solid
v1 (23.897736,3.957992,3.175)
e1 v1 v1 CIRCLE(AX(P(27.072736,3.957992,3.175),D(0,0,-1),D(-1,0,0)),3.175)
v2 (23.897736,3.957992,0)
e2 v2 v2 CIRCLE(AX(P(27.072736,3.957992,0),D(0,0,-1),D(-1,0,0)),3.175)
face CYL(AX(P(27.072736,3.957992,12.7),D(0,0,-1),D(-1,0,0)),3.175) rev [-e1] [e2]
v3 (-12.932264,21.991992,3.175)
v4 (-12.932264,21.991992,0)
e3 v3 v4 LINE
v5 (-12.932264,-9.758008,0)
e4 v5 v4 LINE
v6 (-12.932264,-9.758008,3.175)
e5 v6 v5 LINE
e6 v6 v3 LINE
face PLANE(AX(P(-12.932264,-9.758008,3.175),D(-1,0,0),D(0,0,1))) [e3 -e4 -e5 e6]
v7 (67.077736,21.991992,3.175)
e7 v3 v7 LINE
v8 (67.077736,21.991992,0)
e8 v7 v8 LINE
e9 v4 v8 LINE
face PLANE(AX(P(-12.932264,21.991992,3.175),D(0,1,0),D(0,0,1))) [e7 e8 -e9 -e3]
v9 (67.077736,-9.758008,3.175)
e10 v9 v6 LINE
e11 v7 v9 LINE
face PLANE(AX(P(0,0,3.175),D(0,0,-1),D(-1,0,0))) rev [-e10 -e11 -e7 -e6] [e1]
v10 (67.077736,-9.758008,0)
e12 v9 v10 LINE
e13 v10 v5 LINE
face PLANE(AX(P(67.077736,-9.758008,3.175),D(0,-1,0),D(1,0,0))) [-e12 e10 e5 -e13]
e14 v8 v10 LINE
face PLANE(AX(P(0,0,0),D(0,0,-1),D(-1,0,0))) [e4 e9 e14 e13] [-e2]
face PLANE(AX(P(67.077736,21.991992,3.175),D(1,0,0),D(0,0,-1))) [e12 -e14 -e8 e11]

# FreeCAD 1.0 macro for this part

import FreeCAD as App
import Part
import Sketcher
from FreeCAD import Vector
Q = App.Units.Quantity

doc = App.newDocument("Part")
body = doc.addObject("PartDesign::Body", "Body")

# Sketch on XY plane
sketch1 = body.newObject("Sketcher::SketchObject", "Sketch")
sketch1.AttachmentSupport = (doc.getObject("XY_Plane"), [""])
sketch1.MapMode = "FlatFace"
sketch1.addGeometry([
    Part.LineSegment(Vector(-13, 22, 0), Vector(-13, -10, 0)),
    Part.LineSegment(Vector(-13, -10, 0), Vector(67, -10, 0)),
    Part.LineSegment(Vector(67, -10, 0), Vector(67, 22, 0)),
    Part.LineSegment(Vector(67, 22, 0), Vector(-13, 22, 0)),
], False)
sketch1.addConstraint([
    Sketcher.Constraint("Coincident", 0, 2, 1, 1),
    Sketcher.Constraint("Coincident", 1, 2, 2, 1),
    Sketcher.Constraint("Coincident", 2, 2, 3, 1),
    Sketcher.Constraint("Coincident", 3, 2, 0, 1),
    Sketcher.Constraint("Vertical", 0),
    Sketcher.Constraint("Horizontal", 1),
    Sketcher.Constraint("Vertical", 2),
    Sketcher.Constraint("Horizontal", 3),
    Sketcher.Constraint("DistanceX", 1, 1, 1, 2, Q("3.15 in")),
    Sketcher.Constraint("DistanceY", 0, 2, 0, 1, Q("1.25 in")),
    Sketcher.Constraint("DistanceY", 0, 2, -1, 1, Q("9.758008 mm")),
    Sketcher.Constraint("DistanceX", 0, 2, -1, 1, Q("12.932264 mm")),
])
pad1 = body.newObject("PartDesign::Pad", "Pad")
pad1.Profile = sketch1
pad1.Length = Q("0.125 in")

# Sketch on XY plane
sketch2 = body.newObject("Sketcher::SketchObject", "Sketch001")
sketch2.AttachmentSupport = (doc.getObject("XY_Plane"), [""])
sketch2.MapMode = "FlatFace"
sketch2.addGeometry(Part.Circle(Vector(27.1, 4, 0), Vector(0, 0, 1), 3.2), False)
sketch2.addConstraint([
    Sketcher.Constraint("Diameter", 0, Q("0.25 in")),
    Sketcher.Constraint("DistanceY", -1, 1, 0, 3, Q("3.957992 mm")),
    Sketcher.Constraint("DistanceX", -1, 1, 0, 3, Q("27.072736 mm")),
])
pocket1 = body.newObject("PartDesign::Pocket", "Pocket")
pocket1.Profile = sketch2
pocket1.Length = Q("0.5 in")
pocket1.Reversed = True

doc.recompute()
